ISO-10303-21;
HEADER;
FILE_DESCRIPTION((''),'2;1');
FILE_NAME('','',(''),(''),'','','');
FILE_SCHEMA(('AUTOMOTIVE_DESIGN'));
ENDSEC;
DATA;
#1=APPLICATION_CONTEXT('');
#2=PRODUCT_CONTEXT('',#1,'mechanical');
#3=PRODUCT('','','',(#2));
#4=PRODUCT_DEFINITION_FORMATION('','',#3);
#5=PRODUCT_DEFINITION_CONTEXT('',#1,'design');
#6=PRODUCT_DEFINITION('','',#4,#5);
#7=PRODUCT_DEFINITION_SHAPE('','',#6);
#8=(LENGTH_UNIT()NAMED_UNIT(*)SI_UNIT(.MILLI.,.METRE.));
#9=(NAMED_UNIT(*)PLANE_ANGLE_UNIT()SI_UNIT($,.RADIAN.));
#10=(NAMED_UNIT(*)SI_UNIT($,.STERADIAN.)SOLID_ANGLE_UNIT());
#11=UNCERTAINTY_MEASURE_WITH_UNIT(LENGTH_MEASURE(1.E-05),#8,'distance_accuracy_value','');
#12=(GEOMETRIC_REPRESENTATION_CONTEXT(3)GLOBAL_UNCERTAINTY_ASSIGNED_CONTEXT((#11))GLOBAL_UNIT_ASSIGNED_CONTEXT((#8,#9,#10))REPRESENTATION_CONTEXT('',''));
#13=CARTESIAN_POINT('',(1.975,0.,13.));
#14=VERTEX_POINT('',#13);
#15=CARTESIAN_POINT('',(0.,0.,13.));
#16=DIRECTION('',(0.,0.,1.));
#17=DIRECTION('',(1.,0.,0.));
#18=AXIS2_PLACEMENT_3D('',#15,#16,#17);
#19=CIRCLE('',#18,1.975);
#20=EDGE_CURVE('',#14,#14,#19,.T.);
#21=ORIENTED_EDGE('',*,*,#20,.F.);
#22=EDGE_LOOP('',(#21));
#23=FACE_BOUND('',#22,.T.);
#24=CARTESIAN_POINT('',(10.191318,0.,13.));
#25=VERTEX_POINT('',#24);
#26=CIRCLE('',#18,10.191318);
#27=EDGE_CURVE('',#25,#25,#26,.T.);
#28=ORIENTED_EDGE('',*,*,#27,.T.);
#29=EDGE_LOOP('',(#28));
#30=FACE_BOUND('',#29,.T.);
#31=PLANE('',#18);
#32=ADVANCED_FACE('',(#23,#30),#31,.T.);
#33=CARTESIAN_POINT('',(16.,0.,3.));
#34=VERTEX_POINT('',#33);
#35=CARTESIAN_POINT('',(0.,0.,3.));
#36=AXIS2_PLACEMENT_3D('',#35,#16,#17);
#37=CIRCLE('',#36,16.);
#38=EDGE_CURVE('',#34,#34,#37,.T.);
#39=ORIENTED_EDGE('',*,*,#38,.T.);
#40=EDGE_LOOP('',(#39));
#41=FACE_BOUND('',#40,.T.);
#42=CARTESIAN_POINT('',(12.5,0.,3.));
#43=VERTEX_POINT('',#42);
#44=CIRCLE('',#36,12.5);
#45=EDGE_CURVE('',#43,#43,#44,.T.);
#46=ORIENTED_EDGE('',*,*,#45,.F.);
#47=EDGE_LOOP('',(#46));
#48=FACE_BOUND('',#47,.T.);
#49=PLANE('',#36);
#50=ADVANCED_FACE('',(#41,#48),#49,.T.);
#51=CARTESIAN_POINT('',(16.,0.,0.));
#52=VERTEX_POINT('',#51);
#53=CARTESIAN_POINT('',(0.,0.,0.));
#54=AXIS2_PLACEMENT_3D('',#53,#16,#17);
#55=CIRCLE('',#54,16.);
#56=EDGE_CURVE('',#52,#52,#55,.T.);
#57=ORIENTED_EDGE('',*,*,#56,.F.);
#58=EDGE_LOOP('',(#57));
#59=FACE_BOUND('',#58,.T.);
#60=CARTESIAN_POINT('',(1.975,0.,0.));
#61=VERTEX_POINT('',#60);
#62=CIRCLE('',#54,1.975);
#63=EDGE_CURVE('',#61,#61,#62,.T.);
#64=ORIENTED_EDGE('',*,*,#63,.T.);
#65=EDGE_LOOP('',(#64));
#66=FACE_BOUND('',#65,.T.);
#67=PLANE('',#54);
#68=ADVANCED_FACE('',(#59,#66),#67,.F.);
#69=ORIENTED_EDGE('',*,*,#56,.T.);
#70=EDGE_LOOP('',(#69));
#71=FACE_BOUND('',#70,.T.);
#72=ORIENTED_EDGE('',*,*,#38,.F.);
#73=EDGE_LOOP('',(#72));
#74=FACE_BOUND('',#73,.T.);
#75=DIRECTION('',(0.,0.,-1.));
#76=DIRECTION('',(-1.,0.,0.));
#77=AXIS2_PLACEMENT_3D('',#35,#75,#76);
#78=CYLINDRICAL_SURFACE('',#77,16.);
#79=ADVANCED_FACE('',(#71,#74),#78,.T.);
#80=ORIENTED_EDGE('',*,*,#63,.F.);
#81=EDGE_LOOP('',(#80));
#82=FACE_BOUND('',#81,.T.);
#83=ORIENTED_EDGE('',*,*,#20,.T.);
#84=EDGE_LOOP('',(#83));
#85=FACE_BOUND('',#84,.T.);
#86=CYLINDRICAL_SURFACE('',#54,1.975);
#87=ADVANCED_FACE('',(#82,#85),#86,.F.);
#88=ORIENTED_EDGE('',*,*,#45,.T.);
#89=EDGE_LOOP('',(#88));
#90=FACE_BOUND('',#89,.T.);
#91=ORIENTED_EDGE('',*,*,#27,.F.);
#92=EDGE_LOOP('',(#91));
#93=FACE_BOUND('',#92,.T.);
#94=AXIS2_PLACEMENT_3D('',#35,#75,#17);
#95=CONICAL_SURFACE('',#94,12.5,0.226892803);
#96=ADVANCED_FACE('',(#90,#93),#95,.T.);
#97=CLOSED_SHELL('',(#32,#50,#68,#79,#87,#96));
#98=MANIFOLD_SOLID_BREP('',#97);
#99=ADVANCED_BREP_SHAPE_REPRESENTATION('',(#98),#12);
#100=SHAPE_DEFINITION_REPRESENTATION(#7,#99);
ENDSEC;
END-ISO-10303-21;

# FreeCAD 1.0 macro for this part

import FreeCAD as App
import Part
import Sketcher
from FreeCAD import Vector

doc = App.newDocument("Part")
body = doc.addObject("PartDesign::Body", "Body")

# Sketch on XY plane
sketch1 = doc.addObject("Sketcher::SketchObject", "Sketch")
body.addObject(sketch1)
sketch1.AttachmentSupport = (doc.XY_Plane, [""])
sketch1.MapMode = "FlatFace"
sketch1.addGeometry(Part.Circle(Vector(0, 0, 0), Vector(0, 0, 1), 16), False)
sketch1.addConstraint(Sketcher.Constraint("Coincident", 0, 3, -1, 1))
sketch1.addConstraint(Sketcher.Constraint("Diameter", 0, 32.0))
pad1 = doc.addObject("PartDesign::Pad", "Pad")
body.addObject(pad1)
pad1.Profile = sketch1
pad1.Length = 3

# Sketch on XY plane
sketch2 = doc.addObject("Sketcher::SketchObject", "Sketch001")
body.addObject(sketch2)
sketch2.AttachmentSupport = (doc.XY_Plane, [""])
sketch2.MapMode = "FlatFace"
sketch2.AttachmentOffset = App.Placement(Vector(0, 0, 3), App.Rotation())
sketch2.addGeometry(Part.Circle(Vector(0, 0, 0), Vector(0, 0, 1), 12), False)
sketch2.addConstraint(Sketcher.Constraint("Coincident", 0, 3, -1, 1))
sketch2.addConstraint(Sketcher.Constraint("Diameter", 0, 25.0))
pad2 = doc.addObject("PartDesign::Pad", "Pad001")
body.addObject(pad2)
pad2.Profile = sketch2
pad2.Length = 10
pad2.TaperAngle = -13

# Sketch on XY plane
sketch3 = doc.addObject("Sketcher::SketchObject", "Sketch002")
body.addObject(sketch3)
sketch3.AttachmentSupport = (doc.XY_Plane, [""])
sketch3.MapMode = "FlatFace"
sketch3.AttachmentOffset = App.Placement(Vector(0, 0, 13), App.Rotation())
sketch3.addGeometry(Part.Circle(Vector(0, 0, 0), Vector(0, 0, 1), 2), False)
sketch3.addConstraint(Sketcher.Constraint("Coincident", 0, 3, -1, 1))
sketch3.addConstraint(Sketcher.Constraint("Diameter", 0, 3.95))
pocket1 = doc.addObject("PartDesign::Pocket", "Pocket")
body.addObject(pocket1)
pocket1.Profile = sketch3
pocket1.Type = "ThroughAll"

doc.recompute()
